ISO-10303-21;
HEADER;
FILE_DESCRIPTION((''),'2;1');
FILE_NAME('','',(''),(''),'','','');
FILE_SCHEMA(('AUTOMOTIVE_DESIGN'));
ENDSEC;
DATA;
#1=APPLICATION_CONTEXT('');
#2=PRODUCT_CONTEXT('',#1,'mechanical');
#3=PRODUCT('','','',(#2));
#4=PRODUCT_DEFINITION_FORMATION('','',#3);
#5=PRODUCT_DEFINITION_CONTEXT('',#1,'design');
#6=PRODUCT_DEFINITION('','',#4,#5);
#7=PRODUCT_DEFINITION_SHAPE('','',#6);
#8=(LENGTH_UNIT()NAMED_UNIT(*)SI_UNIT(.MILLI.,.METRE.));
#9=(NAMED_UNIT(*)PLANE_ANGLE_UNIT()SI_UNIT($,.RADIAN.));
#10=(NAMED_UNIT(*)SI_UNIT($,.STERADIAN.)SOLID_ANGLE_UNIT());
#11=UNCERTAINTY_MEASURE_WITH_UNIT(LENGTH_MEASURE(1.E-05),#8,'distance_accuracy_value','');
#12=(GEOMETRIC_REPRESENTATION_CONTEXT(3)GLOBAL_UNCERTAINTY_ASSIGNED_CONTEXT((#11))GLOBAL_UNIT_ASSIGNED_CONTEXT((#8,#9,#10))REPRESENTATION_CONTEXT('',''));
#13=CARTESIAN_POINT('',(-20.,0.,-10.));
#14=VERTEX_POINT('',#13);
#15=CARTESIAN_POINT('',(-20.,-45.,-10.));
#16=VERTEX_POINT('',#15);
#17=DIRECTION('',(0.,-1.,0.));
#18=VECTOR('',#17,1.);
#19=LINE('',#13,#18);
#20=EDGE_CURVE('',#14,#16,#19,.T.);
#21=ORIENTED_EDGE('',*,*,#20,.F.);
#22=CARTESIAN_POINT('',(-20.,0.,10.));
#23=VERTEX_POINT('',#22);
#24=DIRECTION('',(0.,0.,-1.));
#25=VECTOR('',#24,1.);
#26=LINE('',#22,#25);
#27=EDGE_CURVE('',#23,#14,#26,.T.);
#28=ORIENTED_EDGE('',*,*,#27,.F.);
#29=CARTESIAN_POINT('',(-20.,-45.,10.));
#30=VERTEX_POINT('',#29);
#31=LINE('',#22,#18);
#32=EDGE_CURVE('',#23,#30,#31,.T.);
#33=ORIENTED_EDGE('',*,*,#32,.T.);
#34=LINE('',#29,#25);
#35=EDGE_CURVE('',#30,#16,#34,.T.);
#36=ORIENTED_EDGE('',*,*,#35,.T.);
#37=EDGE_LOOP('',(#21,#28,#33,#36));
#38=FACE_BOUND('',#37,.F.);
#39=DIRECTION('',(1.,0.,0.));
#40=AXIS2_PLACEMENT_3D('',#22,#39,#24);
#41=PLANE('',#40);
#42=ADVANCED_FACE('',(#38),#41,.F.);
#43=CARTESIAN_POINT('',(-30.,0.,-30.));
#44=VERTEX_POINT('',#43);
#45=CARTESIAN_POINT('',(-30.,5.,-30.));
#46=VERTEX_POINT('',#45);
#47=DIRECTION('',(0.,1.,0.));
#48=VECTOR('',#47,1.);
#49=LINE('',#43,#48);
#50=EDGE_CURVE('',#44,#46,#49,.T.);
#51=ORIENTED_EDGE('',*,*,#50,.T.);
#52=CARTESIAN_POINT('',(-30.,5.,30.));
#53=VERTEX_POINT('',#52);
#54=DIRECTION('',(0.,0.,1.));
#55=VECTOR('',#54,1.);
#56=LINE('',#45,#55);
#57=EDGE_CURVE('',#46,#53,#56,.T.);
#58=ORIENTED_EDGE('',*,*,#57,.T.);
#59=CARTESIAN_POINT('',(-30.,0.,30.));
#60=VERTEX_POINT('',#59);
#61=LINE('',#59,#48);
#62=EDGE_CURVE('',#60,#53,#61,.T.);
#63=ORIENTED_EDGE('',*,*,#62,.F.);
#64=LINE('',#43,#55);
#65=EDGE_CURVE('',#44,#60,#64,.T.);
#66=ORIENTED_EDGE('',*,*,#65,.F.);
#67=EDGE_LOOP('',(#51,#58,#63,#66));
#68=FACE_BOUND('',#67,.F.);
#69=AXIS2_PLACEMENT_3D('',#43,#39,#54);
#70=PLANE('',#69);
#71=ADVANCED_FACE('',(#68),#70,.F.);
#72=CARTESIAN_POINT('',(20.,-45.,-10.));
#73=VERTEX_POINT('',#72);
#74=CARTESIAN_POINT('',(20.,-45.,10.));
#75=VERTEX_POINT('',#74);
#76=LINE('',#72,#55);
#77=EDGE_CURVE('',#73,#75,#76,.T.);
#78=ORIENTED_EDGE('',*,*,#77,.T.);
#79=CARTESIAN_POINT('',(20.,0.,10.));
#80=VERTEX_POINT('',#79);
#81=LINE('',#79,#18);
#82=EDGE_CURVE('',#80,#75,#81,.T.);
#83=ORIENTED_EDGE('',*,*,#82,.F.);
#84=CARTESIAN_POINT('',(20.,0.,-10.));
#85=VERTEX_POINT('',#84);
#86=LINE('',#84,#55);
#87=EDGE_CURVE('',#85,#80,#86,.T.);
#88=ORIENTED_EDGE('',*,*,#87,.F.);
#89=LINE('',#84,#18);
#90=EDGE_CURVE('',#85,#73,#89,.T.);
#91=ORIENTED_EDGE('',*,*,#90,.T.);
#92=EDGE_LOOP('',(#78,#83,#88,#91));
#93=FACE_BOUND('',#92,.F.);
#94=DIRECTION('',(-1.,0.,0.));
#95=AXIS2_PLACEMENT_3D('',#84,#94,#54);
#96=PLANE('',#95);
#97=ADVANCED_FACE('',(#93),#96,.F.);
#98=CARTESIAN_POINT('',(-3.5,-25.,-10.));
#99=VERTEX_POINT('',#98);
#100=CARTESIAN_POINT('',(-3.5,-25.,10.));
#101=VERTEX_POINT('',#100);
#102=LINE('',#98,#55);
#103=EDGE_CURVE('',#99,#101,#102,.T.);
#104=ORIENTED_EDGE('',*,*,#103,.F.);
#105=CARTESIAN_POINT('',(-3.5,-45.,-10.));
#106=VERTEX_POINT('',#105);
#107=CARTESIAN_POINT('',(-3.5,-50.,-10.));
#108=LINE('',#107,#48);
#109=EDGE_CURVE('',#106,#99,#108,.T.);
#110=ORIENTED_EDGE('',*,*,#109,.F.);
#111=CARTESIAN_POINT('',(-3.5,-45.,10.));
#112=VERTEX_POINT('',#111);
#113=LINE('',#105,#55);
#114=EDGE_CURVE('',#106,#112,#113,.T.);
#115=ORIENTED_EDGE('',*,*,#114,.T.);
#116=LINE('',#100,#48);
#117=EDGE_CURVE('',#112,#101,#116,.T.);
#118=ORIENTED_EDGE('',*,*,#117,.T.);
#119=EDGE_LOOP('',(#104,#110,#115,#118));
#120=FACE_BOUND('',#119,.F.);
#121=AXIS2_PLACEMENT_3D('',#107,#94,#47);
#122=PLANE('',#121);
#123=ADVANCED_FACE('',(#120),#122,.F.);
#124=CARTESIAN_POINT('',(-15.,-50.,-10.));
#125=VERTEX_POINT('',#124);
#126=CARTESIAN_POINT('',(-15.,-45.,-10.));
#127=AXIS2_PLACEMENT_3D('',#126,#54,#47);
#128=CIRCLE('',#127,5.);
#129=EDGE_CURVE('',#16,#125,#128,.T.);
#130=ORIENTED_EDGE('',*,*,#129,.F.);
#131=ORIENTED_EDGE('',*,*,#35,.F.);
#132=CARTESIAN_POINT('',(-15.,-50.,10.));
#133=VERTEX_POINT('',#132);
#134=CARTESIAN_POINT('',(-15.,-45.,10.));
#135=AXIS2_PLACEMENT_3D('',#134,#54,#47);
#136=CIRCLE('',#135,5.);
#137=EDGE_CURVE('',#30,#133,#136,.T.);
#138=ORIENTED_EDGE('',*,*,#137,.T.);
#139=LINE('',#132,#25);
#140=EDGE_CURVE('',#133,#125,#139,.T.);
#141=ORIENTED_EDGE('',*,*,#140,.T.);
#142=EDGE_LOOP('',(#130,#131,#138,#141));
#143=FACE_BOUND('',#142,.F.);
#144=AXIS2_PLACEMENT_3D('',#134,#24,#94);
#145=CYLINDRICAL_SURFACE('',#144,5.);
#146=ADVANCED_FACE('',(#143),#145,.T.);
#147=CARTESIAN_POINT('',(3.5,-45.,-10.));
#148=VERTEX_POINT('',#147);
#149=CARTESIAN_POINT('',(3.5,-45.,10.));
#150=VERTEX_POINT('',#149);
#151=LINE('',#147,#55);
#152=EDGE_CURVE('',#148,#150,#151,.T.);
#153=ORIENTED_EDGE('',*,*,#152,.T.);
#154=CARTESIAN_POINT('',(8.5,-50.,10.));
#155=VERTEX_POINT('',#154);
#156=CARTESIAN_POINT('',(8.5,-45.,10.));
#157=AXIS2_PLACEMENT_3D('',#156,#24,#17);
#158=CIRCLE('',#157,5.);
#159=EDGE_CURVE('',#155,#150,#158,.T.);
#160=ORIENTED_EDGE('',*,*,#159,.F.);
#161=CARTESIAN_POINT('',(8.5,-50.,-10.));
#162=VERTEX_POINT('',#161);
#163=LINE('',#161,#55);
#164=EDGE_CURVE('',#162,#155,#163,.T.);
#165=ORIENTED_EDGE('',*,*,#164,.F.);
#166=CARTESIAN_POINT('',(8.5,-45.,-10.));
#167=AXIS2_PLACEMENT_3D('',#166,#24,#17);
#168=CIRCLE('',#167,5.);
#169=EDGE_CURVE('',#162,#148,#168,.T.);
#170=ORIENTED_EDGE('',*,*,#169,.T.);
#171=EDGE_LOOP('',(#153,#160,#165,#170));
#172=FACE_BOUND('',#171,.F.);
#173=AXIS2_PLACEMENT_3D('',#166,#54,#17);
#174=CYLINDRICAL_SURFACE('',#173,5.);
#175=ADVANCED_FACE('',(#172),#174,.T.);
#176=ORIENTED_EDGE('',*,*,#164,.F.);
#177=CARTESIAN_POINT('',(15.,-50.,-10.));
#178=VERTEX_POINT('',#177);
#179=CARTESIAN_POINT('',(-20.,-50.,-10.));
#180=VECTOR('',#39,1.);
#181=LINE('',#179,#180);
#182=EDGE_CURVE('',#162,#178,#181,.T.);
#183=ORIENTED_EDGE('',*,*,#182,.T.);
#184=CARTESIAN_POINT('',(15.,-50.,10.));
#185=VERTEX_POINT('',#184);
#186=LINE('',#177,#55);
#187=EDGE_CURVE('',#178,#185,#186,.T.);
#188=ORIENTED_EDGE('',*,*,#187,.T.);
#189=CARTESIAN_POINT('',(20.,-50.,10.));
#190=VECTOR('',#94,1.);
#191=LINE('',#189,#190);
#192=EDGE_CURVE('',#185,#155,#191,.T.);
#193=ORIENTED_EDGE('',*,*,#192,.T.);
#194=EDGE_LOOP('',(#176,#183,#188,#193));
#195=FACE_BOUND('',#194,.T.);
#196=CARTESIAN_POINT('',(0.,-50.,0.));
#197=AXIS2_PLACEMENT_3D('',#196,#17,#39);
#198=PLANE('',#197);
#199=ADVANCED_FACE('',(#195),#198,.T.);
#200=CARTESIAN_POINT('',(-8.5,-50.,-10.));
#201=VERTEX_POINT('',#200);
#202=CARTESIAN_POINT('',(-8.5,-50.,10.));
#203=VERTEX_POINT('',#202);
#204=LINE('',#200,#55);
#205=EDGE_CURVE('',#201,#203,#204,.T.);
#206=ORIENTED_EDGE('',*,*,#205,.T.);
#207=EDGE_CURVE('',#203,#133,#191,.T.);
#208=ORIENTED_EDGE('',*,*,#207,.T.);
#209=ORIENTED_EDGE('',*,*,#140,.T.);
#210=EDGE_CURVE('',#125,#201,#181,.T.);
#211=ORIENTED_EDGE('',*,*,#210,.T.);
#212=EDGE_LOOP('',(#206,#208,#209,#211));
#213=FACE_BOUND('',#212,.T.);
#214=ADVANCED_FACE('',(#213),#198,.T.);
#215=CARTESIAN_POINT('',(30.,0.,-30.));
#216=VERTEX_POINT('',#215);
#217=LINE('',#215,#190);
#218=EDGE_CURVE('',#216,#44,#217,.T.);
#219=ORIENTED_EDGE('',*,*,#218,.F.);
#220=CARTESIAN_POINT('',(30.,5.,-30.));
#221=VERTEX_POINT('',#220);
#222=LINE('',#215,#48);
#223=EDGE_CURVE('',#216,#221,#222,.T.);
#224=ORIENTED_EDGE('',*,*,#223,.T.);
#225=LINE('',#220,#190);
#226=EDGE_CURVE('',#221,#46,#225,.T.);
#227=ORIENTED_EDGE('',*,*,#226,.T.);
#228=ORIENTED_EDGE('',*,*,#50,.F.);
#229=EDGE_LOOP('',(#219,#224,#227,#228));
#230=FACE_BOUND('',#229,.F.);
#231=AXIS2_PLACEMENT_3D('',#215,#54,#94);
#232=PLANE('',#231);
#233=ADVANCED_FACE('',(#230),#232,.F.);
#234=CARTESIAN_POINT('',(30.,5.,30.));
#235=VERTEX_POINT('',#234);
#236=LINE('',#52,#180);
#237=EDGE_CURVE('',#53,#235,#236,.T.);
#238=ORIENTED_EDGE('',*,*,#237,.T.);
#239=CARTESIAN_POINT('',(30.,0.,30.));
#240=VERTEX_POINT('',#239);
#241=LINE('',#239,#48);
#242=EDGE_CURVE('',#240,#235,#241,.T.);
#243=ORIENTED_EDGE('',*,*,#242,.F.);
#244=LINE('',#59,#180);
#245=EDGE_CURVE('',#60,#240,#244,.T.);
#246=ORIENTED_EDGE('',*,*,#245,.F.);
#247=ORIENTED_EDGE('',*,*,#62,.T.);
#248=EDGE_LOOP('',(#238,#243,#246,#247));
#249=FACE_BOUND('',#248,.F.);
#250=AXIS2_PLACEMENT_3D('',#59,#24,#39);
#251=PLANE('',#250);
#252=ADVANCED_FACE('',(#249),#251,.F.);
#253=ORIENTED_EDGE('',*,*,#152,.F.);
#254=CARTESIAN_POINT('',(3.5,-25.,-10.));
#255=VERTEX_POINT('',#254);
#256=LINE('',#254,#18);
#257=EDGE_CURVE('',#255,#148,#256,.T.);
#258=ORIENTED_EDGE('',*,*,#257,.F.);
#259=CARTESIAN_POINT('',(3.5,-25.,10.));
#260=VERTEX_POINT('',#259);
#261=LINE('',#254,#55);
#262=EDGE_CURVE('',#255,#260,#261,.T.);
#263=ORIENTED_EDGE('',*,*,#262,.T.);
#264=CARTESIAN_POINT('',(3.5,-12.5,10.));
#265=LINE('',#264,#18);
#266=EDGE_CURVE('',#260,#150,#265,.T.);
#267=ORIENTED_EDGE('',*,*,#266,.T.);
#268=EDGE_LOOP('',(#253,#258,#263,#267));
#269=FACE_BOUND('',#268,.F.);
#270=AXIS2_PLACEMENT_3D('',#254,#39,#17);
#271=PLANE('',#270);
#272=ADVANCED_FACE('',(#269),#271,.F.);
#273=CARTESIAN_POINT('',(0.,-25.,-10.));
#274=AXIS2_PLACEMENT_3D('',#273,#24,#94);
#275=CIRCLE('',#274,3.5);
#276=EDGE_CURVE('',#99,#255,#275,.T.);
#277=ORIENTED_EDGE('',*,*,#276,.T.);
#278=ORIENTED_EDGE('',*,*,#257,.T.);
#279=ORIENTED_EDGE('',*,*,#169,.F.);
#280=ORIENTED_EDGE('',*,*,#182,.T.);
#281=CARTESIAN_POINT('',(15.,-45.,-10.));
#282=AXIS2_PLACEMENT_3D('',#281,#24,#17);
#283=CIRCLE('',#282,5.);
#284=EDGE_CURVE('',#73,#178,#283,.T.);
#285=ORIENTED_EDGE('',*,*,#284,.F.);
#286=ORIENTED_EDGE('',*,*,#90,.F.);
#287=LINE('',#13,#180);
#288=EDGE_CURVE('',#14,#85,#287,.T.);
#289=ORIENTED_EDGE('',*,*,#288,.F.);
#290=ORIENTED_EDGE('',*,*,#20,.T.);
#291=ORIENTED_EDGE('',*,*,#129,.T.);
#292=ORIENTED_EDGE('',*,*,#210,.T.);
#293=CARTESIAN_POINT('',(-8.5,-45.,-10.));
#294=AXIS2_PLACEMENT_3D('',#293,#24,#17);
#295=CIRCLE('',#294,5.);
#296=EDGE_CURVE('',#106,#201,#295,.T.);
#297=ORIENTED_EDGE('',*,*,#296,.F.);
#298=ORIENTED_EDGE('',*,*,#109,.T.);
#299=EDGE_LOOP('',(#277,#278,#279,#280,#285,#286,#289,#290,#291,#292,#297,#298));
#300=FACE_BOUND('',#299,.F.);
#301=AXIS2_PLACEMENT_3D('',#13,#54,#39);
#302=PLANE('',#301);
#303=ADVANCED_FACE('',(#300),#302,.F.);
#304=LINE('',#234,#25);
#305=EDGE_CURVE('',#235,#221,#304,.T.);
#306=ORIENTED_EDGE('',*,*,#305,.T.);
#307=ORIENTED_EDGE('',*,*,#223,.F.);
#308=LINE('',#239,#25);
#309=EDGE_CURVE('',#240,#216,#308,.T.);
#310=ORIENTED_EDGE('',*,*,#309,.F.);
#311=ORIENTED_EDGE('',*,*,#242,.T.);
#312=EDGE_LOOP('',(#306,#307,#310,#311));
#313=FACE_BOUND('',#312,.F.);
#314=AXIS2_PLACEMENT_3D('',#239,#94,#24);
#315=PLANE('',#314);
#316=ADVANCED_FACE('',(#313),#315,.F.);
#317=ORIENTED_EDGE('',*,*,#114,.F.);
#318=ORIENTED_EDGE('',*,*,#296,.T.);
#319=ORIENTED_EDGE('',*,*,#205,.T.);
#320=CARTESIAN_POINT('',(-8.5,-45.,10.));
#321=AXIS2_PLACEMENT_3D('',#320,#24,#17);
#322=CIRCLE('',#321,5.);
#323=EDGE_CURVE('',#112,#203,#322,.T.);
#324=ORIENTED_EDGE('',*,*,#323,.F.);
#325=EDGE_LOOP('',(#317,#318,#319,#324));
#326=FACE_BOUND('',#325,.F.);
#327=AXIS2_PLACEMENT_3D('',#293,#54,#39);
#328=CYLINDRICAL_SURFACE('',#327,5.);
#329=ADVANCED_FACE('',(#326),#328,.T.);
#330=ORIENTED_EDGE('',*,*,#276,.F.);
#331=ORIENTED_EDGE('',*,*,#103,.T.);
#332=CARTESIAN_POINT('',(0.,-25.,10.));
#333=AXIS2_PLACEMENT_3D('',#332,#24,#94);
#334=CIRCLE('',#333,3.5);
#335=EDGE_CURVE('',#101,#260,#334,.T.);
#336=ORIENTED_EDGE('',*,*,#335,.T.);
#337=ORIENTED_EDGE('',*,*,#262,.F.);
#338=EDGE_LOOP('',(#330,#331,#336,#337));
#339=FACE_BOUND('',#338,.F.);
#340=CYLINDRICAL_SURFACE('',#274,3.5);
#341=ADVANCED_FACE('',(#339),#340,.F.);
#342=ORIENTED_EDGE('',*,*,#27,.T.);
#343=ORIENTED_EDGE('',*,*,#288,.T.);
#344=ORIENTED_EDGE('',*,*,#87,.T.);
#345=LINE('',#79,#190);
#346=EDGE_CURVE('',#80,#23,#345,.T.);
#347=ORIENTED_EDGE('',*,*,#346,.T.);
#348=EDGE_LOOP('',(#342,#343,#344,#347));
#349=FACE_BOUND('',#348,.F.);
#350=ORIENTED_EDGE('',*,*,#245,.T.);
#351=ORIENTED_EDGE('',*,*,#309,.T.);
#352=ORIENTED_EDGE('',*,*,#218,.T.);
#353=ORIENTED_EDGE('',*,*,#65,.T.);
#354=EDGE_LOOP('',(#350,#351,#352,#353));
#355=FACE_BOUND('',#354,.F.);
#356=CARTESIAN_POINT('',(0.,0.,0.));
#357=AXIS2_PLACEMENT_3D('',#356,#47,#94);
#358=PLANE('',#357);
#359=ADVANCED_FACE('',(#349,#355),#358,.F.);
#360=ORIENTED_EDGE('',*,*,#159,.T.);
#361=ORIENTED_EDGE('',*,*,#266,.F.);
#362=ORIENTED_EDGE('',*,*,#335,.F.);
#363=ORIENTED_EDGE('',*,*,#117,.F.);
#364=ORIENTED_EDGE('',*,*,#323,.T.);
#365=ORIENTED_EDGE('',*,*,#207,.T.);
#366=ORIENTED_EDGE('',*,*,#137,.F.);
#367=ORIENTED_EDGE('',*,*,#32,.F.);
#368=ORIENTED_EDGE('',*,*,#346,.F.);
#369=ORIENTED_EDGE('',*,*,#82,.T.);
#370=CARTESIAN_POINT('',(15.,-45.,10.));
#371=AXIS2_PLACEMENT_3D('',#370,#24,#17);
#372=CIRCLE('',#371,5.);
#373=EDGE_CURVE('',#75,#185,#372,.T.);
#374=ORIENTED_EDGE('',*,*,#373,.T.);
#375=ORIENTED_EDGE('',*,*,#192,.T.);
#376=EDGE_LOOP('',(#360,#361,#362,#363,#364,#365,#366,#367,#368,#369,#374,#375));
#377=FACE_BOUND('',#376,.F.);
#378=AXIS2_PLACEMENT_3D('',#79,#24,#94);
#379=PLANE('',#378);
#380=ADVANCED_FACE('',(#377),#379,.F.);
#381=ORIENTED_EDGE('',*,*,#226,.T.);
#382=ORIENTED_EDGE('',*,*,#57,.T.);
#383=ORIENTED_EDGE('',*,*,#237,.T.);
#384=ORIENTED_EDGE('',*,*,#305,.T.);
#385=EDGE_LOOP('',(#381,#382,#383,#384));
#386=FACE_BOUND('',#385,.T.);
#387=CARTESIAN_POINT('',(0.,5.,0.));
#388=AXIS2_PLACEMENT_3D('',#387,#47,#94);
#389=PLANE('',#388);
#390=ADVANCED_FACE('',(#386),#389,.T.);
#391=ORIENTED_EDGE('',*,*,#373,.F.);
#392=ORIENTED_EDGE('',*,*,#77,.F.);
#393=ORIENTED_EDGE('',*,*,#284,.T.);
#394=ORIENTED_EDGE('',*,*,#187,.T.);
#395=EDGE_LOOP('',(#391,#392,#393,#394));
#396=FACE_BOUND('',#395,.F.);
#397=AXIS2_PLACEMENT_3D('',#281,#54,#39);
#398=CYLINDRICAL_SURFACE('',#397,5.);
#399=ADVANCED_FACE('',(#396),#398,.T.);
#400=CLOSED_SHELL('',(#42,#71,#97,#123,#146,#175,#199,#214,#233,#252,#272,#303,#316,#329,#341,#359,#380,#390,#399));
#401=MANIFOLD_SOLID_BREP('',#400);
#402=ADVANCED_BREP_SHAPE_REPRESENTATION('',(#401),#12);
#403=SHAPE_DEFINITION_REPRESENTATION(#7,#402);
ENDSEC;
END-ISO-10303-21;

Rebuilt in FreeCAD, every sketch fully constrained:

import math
import FreeCAD as App
import Part
import Sketcher
from FreeCAD import Vector
Q = App.Units.Quantity


def edges_at(feature, points):
    """Names of the edges that pass closest to the given points."""
    edges = feature.Shape.Edges
    near = lambda p: min(range(len(edges)), key=lambda i: edges[i].distToShape(Part.Vertex(*p))[0])
    return sorted({f"Edge{near(p) + 1}" for p in points})

doc = App.newDocument("Part")
body = doc.addObject("PartDesign::Body", "Body")

# Sketch on XZ plane
sketch1 = doc.addObject("Sketcher::SketchObject", "Sketch")
body.addObject(sketch1)
sketch1.AttachmentSupport = (doc.XZ_Plane, [""])
sketch1.MapMode = "FlatFace"
sketch1.addGeometry([
    Part.LineSegment(Vector(20, 10, 0), Vector(-20, 10, 0)),
    Part.LineSegment(Vector(-20, 10, 0), Vector(-20, -10, 0)),
    Part.LineSegment(Vector(-20, -10, 0), Vector(20, -10, 0)),
    Part.LineSegment(Vector(20, -10, 0), Vector(20, 10, 0)),
], False)
sketch1.addConstraint([
    Sketcher.Constraint("Coincident", 0, 2, 1, 1),
    Sketcher.Constraint("Coincident", 1, 2, 2, 1),
    Sketcher.Constraint("Coincident", 2, 2, 3, 1),
    Sketcher.Constraint("Coincident", 3, 2, 0, 1),
    Sketcher.Constraint("Horizontal", 0),
    Sketcher.Constraint("Vertical", 1),
    Sketcher.Constraint("Horizontal", 2),
    Sketcher.Constraint("Vertical", 3),
    Sketcher.Constraint("Symmetric", 0, 2, 2, 2, -1, 1),
    Sketcher.Constraint("DistanceX", 0, 2, 0, 1, Q("40 mm")),
    Sketcher.Constraint("DistanceY", 1, 2, 1, 1, Q("20 mm")),
])
pad1 = doc.addObject("PartDesign::Pad", "Pad")
body.addObject(pad1)
pad1.Profile = sketch1
pad1.Length = 50

# Sketch on XY plane
sketch2 = doc.addObject("Sketcher::SketchObject", "Sketch001")
body.addObject(sketch2)
sketch2.AttachmentSupport = (doc.XY_Plane, [""])
sketch2.MapMode = "FlatFace"
sketch2.AttachmentOffset = App.Placement(Vector(0, 0, -10), App.Rotation())
sketch2.addGeometry([
    Part.LineSegment(Vector(-3.5, -50, 0), Vector(-3.5, -25, 0)),
    Part.ArcOfCircle(Part.Circle(Vector(0, -25, 0), Vector(0, 0, 1), 3.5), math.radians(0), math.radians(180)),
    Part.LineSegment(Vector(3.5, -25, 0), Vector(3.5, -50, 0)),
    Part.LineSegment(Vector(3.5, -50, 0), Vector(-3.5, -50, 0)),
], False)
sketch2.addConstraint([
    Sketcher.Constraint("Tangent", 0, 2, 1, 2),
    Sketcher.Constraint("Tangent", 1, 1, 2, 1),
    Sketcher.Constraint("Coincident", 2, 2, 3, 1),
    Sketcher.Constraint("Coincident", 3, 2, 0, 1),
    Sketcher.Constraint("Vertical", 0),
    Sketcher.Constraint("Vertical", 2),
    Sketcher.Constraint("Horizontal", 3),
    Sketcher.Constraint("PointOnObject", 1, 3, -2),
    Sketcher.Constraint("Radius", 1, Q("3.5 mm")),
    Sketcher.Constraint("DistanceY", 0, 1, 0, 2, Q("25 mm")),
    Sketcher.Constraint("DistanceY", 1, 3, -1, 1, Q("25 mm")),
])
pocket1 = doc.addObject("PartDesign::Pocket", "Pocket")
body.addObject(pocket1)
pocket1.Profile = sketch2
pocket1.Length = 25
pocket1.Reversed = True

# Sketch on XZ plane
sketch3 = doc.addObject("Sketcher::SketchObject", "Sketch002")
body.addObject(sketch3)
sketch3.AttachmentSupport = (doc.XZ_Plane, [""])
sketch3.MapMode = "FlatFace"
sketch3.addGeometry([
    Part.LineSegment(Vector(30, 30, 0), Vector(30, -30, 0)),
    Part.LineSegment(Vector(30, -30, 0), Vector(-30, -30, 0)),
    Part.LineSegment(Vector(-30, -30, 0), Vector(-30, 30, 0)),
    Part.LineSegment(Vector(-30, 30, 0), Vector(30, 30, 0)),
], False)
sketch3.addConstraint([
    Sketcher.Constraint("Coincident", 0, 2, 1, 1),
    Sketcher.Constraint("Coincident", 1, 2, 2, 1),
    Sketcher.Constraint("Coincident", 2, 2, 3, 1),
    Sketcher.Constraint("Coincident", 3, 2, 0, 1),
    Sketcher.Constraint("Vertical", 0),
    Sketcher.Constraint("Horizontal", 1),
    Sketcher.Constraint("Vertical", 2),
    Sketcher.Constraint("Horizontal", 3),
    Sketcher.Constraint("Symmetric", 0, 2, 2, 2, -1, 1),
    Sketcher.Constraint("Equal", 3, 0),
    Sketcher.Constraint("DistanceX", 1, 2, 1, 1, Q("60 mm")),
])
pad2 = doc.addObject("PartDesign::Pad", "Pad001")
body.addObject(pad2)
pad2.Profile = sketch3
pad2.Length = 5
pad2.Reversed = True
doc.recompute()

fillet = doc.addObject("PartDesign::Fillet", "Fillet")
body.addObject(fillet)
fillet.Base = (pad2, edges_at(pad2, [
    (20, -50, 0),
    (3.5, -50, 0),
    (-3.5, -50, 0),
    (-20, -50, 0),
]))
fillet.Radius = 5

doc.recompute()
